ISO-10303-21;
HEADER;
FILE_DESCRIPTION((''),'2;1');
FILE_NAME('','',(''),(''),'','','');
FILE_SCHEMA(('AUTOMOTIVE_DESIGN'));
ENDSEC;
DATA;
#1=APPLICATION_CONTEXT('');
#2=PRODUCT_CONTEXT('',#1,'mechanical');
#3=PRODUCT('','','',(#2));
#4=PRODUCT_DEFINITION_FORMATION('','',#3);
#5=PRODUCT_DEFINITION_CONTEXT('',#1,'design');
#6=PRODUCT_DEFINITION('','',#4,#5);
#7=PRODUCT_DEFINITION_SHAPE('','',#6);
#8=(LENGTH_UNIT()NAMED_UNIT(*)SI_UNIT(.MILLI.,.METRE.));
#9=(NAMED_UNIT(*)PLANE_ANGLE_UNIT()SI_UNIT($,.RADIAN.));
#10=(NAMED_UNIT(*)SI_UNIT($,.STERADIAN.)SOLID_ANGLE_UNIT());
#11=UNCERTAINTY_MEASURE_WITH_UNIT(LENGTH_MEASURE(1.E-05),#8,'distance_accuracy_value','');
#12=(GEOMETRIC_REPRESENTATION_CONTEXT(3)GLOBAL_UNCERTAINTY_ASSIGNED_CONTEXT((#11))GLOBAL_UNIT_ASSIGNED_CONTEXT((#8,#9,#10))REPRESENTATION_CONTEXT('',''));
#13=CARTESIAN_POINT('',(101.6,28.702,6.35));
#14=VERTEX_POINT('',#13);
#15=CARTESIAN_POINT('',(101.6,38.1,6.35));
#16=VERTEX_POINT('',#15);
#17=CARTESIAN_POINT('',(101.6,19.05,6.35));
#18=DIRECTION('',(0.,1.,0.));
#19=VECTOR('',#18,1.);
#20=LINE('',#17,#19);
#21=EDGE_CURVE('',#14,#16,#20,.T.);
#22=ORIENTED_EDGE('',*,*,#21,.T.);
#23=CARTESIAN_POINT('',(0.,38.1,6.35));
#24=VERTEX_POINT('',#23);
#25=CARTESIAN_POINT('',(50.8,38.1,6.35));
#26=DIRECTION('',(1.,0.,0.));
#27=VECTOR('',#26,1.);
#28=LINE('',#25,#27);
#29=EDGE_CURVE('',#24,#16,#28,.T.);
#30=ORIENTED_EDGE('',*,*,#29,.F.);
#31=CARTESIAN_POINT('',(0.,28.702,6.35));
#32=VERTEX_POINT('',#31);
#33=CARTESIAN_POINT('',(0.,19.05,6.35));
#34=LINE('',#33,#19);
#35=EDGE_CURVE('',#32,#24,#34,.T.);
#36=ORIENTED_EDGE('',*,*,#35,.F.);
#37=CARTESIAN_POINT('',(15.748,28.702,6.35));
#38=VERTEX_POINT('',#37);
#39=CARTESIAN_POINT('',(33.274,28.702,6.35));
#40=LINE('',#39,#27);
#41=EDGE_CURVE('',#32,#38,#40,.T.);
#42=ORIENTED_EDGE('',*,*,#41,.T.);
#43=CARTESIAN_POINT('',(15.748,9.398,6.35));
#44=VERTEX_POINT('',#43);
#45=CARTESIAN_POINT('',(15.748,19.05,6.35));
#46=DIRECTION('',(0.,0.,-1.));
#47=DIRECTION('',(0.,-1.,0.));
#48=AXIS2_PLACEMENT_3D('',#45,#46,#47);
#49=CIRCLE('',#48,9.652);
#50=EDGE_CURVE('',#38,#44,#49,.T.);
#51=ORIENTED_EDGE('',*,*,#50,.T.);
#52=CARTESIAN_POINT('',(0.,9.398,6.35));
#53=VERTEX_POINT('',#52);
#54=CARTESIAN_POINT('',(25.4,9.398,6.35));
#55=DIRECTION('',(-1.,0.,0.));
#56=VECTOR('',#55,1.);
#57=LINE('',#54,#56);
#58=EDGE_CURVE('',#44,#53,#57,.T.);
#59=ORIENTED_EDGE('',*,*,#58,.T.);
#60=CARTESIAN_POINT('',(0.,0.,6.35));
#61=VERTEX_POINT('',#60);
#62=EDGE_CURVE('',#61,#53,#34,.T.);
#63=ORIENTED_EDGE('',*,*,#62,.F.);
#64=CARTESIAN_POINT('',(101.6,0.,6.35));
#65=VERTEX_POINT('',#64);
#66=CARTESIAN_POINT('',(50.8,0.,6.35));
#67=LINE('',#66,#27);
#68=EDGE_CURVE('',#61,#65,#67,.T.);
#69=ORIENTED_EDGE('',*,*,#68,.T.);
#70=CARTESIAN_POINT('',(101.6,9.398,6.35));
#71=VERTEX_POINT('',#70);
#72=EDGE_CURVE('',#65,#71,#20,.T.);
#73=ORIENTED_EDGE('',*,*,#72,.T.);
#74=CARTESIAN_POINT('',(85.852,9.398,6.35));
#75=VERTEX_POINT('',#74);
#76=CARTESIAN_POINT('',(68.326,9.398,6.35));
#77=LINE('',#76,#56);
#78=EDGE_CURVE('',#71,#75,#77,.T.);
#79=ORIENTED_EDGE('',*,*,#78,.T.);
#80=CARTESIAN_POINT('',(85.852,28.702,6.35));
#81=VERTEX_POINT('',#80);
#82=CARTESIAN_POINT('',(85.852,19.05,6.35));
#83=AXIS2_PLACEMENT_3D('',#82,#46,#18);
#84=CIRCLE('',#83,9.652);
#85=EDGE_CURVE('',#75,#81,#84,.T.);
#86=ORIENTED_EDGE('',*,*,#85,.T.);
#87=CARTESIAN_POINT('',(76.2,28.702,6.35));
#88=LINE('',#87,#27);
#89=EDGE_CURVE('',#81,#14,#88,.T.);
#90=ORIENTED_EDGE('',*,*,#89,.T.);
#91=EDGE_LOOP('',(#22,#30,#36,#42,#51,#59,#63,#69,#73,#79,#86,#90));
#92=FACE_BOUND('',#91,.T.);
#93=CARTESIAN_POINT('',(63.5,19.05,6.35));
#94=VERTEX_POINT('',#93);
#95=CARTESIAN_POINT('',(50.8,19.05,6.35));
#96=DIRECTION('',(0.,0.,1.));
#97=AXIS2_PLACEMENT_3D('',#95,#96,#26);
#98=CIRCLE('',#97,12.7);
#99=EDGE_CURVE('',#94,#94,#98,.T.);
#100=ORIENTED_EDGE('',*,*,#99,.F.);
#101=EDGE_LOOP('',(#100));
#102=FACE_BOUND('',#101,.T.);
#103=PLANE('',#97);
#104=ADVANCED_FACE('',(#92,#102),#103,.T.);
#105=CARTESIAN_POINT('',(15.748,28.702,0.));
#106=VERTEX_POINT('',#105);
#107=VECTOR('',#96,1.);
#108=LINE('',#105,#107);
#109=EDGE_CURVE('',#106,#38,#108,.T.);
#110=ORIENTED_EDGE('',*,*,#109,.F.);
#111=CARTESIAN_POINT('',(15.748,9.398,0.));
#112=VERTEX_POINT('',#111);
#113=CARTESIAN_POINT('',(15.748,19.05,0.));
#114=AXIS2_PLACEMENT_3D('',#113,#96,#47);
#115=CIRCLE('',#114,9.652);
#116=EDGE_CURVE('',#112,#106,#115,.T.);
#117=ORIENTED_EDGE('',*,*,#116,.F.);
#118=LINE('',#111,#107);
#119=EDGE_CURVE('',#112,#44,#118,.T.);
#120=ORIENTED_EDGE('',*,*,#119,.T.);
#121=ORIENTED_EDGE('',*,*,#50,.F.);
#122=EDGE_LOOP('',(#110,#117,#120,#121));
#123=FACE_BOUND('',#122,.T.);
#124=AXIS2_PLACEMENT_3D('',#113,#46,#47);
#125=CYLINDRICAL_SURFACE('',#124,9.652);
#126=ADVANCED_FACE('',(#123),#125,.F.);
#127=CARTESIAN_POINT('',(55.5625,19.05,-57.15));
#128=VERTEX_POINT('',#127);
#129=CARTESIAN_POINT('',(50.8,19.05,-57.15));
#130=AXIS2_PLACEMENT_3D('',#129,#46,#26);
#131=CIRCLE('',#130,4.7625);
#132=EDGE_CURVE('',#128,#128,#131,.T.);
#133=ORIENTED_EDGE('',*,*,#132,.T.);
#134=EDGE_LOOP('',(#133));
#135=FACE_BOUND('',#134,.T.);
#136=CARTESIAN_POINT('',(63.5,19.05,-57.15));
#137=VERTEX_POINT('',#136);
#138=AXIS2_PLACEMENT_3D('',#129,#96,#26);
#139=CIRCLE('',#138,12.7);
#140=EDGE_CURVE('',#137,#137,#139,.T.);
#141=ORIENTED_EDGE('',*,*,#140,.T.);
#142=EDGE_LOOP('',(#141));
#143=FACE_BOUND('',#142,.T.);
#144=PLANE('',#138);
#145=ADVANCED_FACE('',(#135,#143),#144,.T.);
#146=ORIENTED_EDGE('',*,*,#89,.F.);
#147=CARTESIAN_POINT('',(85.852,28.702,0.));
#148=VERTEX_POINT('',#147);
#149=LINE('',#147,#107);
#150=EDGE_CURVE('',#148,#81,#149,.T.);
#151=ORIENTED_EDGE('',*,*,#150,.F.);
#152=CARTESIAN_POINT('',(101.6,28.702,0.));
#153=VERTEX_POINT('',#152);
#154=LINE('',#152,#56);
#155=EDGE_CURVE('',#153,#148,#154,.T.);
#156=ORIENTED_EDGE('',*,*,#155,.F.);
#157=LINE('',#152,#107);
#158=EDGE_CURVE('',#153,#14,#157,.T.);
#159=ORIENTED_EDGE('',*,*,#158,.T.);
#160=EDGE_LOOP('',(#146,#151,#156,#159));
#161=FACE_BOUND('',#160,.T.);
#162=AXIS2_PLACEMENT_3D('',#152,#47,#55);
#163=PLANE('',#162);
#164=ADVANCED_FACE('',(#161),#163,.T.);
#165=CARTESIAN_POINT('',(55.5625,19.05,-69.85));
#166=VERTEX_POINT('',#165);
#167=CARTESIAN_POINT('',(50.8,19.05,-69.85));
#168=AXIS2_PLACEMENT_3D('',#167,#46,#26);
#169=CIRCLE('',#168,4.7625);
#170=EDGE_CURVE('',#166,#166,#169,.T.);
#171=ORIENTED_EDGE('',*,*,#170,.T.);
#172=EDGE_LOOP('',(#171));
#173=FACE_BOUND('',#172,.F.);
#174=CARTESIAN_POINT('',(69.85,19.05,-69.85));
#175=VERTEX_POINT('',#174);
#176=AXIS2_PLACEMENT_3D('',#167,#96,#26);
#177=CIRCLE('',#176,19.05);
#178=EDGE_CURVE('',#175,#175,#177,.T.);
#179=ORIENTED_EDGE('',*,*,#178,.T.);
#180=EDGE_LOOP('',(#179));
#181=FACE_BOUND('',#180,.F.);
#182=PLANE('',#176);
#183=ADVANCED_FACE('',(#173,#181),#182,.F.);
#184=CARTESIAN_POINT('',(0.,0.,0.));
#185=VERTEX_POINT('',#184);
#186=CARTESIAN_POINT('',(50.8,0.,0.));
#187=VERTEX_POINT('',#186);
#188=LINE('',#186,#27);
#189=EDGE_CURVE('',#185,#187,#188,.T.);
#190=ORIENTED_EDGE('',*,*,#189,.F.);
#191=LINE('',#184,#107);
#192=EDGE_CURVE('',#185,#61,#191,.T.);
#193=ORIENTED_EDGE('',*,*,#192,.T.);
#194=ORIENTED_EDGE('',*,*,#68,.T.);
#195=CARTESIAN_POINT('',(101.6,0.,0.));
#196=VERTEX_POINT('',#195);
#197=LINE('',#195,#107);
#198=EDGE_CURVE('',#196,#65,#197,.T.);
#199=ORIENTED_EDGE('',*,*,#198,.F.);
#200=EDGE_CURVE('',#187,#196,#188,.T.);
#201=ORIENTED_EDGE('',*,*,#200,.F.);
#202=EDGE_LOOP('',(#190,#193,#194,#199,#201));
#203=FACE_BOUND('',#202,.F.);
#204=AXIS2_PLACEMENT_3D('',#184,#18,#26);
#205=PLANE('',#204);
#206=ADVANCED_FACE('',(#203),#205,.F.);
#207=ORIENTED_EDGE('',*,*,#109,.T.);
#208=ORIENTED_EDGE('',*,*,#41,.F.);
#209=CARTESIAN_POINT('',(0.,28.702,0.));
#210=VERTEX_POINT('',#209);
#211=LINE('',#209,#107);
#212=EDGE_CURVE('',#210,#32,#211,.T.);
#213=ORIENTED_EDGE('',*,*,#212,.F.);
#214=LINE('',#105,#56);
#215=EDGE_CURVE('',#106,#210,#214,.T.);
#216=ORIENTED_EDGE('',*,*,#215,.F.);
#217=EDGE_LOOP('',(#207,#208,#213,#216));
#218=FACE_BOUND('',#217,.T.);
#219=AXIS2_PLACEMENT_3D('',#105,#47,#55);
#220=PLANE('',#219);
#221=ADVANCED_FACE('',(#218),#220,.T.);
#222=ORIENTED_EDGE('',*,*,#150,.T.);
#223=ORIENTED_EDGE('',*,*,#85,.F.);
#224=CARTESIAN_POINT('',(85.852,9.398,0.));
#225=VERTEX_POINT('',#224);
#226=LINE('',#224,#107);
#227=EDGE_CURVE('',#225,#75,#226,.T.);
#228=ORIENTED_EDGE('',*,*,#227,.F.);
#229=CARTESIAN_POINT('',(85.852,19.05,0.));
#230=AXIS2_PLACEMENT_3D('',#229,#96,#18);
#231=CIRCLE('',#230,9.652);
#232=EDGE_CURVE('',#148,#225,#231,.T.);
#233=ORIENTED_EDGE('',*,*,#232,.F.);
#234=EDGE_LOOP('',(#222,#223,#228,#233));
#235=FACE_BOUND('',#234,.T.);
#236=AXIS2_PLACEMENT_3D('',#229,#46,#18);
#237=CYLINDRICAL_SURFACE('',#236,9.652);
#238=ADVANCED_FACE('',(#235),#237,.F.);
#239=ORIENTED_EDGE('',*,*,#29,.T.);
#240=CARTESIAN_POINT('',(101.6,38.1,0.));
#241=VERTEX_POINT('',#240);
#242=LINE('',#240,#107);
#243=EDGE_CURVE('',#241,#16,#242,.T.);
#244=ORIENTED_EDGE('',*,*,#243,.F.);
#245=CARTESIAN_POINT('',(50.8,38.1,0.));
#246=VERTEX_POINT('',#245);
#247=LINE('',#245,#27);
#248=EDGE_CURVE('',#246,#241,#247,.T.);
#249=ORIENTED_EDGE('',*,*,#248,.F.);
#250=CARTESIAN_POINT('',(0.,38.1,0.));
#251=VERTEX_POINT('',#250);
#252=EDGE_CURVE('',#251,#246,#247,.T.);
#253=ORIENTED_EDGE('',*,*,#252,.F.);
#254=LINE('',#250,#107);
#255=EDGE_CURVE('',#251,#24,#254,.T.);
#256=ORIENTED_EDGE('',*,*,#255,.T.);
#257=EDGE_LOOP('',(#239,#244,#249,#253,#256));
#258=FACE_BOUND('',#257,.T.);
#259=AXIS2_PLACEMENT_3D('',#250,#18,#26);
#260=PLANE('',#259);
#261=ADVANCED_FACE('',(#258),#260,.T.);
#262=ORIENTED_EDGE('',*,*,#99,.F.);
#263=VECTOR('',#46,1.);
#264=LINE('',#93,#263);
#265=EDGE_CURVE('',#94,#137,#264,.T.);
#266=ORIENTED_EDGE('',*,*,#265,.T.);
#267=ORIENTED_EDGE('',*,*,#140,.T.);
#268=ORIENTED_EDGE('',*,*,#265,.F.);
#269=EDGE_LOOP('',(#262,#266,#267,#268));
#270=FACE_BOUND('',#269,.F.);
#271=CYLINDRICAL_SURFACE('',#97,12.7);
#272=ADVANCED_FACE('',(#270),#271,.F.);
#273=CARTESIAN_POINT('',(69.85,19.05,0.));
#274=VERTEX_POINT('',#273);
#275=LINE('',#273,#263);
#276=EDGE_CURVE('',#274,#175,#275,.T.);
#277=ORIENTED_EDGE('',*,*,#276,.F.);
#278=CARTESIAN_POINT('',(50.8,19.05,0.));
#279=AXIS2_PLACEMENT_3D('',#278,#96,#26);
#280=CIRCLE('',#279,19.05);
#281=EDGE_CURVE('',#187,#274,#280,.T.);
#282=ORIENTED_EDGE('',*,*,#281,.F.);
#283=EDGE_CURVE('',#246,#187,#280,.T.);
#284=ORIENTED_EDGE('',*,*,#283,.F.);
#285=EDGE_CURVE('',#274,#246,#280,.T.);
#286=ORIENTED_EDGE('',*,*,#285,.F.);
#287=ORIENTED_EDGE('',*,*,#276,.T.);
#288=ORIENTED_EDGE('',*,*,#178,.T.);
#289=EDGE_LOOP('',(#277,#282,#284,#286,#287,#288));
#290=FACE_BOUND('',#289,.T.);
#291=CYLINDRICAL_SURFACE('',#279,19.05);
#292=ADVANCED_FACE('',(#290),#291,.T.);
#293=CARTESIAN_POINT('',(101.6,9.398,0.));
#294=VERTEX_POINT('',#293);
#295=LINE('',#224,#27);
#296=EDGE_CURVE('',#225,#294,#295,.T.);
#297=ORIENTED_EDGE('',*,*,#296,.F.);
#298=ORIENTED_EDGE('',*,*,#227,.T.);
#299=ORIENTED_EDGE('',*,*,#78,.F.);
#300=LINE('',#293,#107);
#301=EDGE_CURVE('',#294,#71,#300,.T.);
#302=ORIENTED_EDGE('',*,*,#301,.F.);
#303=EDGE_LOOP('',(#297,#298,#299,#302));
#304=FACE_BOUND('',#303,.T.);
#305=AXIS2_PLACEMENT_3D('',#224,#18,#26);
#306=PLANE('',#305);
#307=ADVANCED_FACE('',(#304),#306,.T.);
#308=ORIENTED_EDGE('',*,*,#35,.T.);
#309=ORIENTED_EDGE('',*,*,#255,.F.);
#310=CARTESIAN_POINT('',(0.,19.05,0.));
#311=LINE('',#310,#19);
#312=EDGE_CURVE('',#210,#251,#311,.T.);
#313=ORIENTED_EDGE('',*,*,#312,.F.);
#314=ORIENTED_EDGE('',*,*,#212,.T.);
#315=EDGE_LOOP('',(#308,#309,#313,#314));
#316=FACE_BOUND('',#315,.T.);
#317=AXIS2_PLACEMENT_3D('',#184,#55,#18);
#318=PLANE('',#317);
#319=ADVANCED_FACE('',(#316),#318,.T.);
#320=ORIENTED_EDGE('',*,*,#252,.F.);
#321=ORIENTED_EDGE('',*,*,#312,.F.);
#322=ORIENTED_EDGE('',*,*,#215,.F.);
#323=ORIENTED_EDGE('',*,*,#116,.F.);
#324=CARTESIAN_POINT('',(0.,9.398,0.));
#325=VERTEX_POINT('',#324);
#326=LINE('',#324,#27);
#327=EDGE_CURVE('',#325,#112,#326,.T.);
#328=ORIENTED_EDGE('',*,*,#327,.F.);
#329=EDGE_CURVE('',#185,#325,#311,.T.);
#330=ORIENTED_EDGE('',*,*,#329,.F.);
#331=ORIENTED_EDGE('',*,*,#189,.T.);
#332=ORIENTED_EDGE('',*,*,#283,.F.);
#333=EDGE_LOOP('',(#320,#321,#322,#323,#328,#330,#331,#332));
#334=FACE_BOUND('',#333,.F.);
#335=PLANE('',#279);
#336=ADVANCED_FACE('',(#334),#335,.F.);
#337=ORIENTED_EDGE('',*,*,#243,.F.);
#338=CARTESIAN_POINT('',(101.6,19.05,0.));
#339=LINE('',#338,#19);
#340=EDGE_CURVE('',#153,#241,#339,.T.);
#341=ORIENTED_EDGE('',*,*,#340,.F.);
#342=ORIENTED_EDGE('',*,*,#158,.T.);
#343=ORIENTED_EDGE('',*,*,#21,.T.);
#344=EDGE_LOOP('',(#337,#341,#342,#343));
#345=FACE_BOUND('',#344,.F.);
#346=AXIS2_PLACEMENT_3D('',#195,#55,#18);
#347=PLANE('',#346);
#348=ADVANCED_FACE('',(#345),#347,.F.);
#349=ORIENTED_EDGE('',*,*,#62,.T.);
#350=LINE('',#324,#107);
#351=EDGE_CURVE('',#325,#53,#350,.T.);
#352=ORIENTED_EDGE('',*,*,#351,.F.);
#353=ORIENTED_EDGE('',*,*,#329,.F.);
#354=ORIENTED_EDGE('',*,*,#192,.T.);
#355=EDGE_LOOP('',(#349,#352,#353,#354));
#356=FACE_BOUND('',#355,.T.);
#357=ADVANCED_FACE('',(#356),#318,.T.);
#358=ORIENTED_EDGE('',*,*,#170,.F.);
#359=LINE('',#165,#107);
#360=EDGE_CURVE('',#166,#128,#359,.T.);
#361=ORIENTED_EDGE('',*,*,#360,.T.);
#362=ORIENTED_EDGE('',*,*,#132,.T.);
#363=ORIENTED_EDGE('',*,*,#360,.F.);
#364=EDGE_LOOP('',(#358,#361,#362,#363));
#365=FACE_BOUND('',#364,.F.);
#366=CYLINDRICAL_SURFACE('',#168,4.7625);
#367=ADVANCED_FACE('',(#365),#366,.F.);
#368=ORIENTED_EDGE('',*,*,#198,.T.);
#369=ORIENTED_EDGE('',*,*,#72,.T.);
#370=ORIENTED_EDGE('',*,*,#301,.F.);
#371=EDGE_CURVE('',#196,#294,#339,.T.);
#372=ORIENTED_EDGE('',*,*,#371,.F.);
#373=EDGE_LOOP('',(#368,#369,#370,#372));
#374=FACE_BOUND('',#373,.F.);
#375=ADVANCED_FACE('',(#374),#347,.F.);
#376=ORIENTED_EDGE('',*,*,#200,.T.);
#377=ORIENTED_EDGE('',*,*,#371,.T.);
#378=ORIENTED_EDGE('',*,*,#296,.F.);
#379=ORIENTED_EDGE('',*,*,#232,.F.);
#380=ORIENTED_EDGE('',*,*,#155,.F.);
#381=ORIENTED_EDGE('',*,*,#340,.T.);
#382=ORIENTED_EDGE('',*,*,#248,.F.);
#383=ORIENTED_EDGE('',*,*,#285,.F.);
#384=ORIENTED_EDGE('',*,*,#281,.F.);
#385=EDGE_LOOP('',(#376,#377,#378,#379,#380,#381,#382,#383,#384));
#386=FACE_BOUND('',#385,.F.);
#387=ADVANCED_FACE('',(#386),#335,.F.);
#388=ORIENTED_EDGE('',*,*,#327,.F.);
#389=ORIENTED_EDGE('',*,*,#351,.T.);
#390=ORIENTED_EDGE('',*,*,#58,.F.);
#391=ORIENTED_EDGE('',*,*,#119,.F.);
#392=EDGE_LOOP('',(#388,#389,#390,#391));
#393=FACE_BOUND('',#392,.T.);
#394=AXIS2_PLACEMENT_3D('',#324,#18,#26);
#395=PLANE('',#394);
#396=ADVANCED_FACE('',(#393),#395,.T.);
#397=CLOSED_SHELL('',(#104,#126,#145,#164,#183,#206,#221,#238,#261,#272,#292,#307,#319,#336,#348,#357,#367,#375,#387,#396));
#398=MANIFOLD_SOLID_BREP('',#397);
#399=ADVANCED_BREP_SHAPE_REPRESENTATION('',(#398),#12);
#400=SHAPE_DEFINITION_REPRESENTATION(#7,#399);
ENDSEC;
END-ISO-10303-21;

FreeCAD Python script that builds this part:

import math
import FreeCAD as App
import Part
import Sketcher

V = App.Vector
Q = App.Units.Quantity


def add_polygon(sketch, points):
    """Adds a closed chain of lines whose ends are joined by coincident constraints."""
    first, n = sketch.GeometryCount, len(points)
    for a, b in zip(points, points[1:] + points[:1]):
        sketch.addGeometry(Part.LineSegment(App.Vector(*a, 0), App.Vector(*b, 0)), False)
    for i in range(n):
        sketch.addConstraint(Sketcher.Constraint("Coincident", first + i, 2, first + (i + 1) % n, 1))

doc = App.newDocument("Part")
body = doc.addObject("PartDesign::Body", "Body")

sketch1 = body.newObject("Sketcher::SketchObject", "Sketch")
sketch1.AttachmentSupport = (doc.getObject("XY_Plane"), [""])
sketch1.MapMode = "FlatFace"
add_polygon(sketch1, [(0, 38), (0, 0), (102, 0), (102, 38)])
sketch1.addConstraint([
    Sketcher.Constraint("Vertical", 0),
    Sketcher.Constraint("Horizontal", 1),
    Sketcher.Constraint("Vertical", 2),
    Sketcher.Constraint("Horizontal", 3),
    Sketcher.Constraint("Coincident", 0, 2, -1, 1),
    Sketcher.Constraint("DistanceX", 1, 1, 1, 2, Q("4 in")),
    Sketcher.Constraint("DistanceY", 0, 2, 0, 1, Q("1.5 in")),
])
pad1 = body.newObject("PartDesign::Pad", "Pad")
pad1.Profile = sketch1
pad1.Length = Q("0.25 in")

sketch2 = body.newObject("Sketcher::SketchObject", "Sketch001")
sketch2.AttachmentSupport = (doc.getObject("XY_Plane"), [""])
sketch2.MapMode = "FlatFace"
sketch2.addGeometry([
    Part.LineSegment(V(16, 29, 0), V(0, 29, 0)),
    Part.LineSegment(V(0, 29, 0), V(0, 9, 0)),
    Part.LineSegment(V(0, 9, 0), V(16, 9, 0)),
    Part.ArcOfCircle(Part.Circle(V(16, 19, 0), V(0, 0, 1), 10), math.radians(-90), math.radians(90)),
    Part.LineSegment(V(102, 9, 0), V(102, 29, 0)),
    Part.LineSegment(V(102, 29, 0), V(86, 29, 0)),
    Part.ArcOfCircle(Part.Circle(V(86, 19, 0), V(0, 0, 1), 10), math.radians(90), math.radians(270)),
    Part.LineSegment(V(86, 9, 0), V(102, 9, 0)),
], False)
sketch2.addConstraint([
    Sketcher.Constraint("Coincident", 0, 2, 1, 1),
    Sketcher.Constraint("Coincident", 1, 2, 2, 1),
    Sketcher.Constraint("Tangent", 2, 2, 3, 1),
    Sketcher.Constraint("Tangent", 3, 2, 0, 1),
    Sketcher.Constraint("Coincident", 4, 2, 5, 1),
    Sketcher.Constraint("Tangent", 5, 2, 6, 1),
    Sketcher.Constraint("Tangent", 6, 2, 7, 1),
    Sketcher.Constraint("Coincident", 7, 2, 4, 1),
    Sketcher.Constraint("Horizontal", 0),
    Sketcher.Constraint("Vertical", 1),
    Sketcher.Constraint("Horizontal", 2),
    Sketcher.Constraint("Vertical", 4),
    Sketcher.Constraint("Horizontal", 5),
    Sketcher.Constraint("Horizontal", 7),
    Sketcher.Constraint("Equal", 3, 6),
    Sketcher.Constraint("PointOnObject", 0, 2, -2),
    Sketcher.Constraint("Horizontal", 3, 3, 6, 3),
    Sketcher.Constraint("Equal", 2, 5),
    Sketcher.Constraint("Radius", 3, Q("0.38 in")),
    Sketcher.Constraint("DistanceX", -1, 1, 4, 2, Q("4 in")),
    Sketcher.Constraint("DistanceX", 0, 2, 0, 1, Q("0.62 in")),
    Sketcher.Constraint("DistanceY", -1, 1, 3, 3, Q("0.75 in")),
])
pocket1 = body.newObject("PartDesign::Pocket", "Pocket")
pocket1.Profile = sketch2
pocket1.Length = Q("1 in")
pocket1.Reversed = True

sketch3 = body.newObject("Sketcher::SketchObject", "Sketch002")
sketch3.AttachmentSupport = (doc.getObject("XY_Plane"), [""])
sketch3.MapMode = "FlatFace"
sketch3.addGeometry(Part.Circle(V(51, 19, 0), V(0, 0, 1), 19), False)
sketch3.addConstraint([
    Sketcher.Constraint("Diameter", 0, Q("1.5 in")),
    Sketcher.Constraint("DistanceX", -1, 1, 0, 3, Q("2 in")),
    Sketcher.Constraint("DistanceY", -1, 1, 0, 3, Q("0.75 in")),
])
pad2 = body.newObject("PartDesign::Pad", "Pad001")
pad2.Profile = sketch3
pad2.Length = Q("2.75 in")
pad2.Reversed = True

sketch4 = body.newObject("Sketcher::SketchObject", "Sketch003")
sketch4.AttachmentSupport = (doc.getObject("XY_Plane"), [""])
sketch4.MapMode = "FlatFace"
sketch4.AttachmentOffset = App.Placement(V(0, 0, 0.25 * 25.4), App.Rotation())
sketch4.addGeometry(Part.Circle(V(51, 19, 0), V(0, 0, 1), 13), False)
sketch4.addConstraint([
    Sketcher.Constraint("Diameter", 0, Q("1 in")),
    Sketcher.Constraint("DistanceX", -1, 1, 0, 3, Q("2 in")),
    Sketcher.Constraint("DistanceY", -1, 1, 0, 3, Q("0.75 in")),
])
pocket2 = body.newObject("PartDesign::Pocket", "Pocket001")
pocket2.Profile = sketch4
pocket2.Length = Q("2.5 in")

sketch5 = body.newObject("Sketcher::SketchObject", "Sketch004")
sketch5.AttachmentSupport = (doc.getObject("XY_Plane"), [""])
sketch5.MapMode = "FlatFace"
sketch5.AttachmentOffset = App.Placement(V(0, 0, -2.75 * 25.4), App.Rotation())
sketch5.addGeometry(Part.Circle(V(50.8, 19.1, 0), V(0, 0, 1), 4.8), False)
sketch5.addConstraint([
    Sketcher.Constraint("Diameter", 0, Q("0.375 in")),
    Sketcher.Constraint("DistanceX", -1, 1, 0, 3, Q("2 in")),
    Sketcher.Constraint("DistanceY", -1, 1, 0, 3, Q("0.75 in")),
])
pocket3 = body.newObject("PartDesign::Pocket", "Pocket002")
pocket3.Profile = sketch5
pocket3.Type = "ThroughAll"
pocket3.Reversed = True

doc.recompute()
